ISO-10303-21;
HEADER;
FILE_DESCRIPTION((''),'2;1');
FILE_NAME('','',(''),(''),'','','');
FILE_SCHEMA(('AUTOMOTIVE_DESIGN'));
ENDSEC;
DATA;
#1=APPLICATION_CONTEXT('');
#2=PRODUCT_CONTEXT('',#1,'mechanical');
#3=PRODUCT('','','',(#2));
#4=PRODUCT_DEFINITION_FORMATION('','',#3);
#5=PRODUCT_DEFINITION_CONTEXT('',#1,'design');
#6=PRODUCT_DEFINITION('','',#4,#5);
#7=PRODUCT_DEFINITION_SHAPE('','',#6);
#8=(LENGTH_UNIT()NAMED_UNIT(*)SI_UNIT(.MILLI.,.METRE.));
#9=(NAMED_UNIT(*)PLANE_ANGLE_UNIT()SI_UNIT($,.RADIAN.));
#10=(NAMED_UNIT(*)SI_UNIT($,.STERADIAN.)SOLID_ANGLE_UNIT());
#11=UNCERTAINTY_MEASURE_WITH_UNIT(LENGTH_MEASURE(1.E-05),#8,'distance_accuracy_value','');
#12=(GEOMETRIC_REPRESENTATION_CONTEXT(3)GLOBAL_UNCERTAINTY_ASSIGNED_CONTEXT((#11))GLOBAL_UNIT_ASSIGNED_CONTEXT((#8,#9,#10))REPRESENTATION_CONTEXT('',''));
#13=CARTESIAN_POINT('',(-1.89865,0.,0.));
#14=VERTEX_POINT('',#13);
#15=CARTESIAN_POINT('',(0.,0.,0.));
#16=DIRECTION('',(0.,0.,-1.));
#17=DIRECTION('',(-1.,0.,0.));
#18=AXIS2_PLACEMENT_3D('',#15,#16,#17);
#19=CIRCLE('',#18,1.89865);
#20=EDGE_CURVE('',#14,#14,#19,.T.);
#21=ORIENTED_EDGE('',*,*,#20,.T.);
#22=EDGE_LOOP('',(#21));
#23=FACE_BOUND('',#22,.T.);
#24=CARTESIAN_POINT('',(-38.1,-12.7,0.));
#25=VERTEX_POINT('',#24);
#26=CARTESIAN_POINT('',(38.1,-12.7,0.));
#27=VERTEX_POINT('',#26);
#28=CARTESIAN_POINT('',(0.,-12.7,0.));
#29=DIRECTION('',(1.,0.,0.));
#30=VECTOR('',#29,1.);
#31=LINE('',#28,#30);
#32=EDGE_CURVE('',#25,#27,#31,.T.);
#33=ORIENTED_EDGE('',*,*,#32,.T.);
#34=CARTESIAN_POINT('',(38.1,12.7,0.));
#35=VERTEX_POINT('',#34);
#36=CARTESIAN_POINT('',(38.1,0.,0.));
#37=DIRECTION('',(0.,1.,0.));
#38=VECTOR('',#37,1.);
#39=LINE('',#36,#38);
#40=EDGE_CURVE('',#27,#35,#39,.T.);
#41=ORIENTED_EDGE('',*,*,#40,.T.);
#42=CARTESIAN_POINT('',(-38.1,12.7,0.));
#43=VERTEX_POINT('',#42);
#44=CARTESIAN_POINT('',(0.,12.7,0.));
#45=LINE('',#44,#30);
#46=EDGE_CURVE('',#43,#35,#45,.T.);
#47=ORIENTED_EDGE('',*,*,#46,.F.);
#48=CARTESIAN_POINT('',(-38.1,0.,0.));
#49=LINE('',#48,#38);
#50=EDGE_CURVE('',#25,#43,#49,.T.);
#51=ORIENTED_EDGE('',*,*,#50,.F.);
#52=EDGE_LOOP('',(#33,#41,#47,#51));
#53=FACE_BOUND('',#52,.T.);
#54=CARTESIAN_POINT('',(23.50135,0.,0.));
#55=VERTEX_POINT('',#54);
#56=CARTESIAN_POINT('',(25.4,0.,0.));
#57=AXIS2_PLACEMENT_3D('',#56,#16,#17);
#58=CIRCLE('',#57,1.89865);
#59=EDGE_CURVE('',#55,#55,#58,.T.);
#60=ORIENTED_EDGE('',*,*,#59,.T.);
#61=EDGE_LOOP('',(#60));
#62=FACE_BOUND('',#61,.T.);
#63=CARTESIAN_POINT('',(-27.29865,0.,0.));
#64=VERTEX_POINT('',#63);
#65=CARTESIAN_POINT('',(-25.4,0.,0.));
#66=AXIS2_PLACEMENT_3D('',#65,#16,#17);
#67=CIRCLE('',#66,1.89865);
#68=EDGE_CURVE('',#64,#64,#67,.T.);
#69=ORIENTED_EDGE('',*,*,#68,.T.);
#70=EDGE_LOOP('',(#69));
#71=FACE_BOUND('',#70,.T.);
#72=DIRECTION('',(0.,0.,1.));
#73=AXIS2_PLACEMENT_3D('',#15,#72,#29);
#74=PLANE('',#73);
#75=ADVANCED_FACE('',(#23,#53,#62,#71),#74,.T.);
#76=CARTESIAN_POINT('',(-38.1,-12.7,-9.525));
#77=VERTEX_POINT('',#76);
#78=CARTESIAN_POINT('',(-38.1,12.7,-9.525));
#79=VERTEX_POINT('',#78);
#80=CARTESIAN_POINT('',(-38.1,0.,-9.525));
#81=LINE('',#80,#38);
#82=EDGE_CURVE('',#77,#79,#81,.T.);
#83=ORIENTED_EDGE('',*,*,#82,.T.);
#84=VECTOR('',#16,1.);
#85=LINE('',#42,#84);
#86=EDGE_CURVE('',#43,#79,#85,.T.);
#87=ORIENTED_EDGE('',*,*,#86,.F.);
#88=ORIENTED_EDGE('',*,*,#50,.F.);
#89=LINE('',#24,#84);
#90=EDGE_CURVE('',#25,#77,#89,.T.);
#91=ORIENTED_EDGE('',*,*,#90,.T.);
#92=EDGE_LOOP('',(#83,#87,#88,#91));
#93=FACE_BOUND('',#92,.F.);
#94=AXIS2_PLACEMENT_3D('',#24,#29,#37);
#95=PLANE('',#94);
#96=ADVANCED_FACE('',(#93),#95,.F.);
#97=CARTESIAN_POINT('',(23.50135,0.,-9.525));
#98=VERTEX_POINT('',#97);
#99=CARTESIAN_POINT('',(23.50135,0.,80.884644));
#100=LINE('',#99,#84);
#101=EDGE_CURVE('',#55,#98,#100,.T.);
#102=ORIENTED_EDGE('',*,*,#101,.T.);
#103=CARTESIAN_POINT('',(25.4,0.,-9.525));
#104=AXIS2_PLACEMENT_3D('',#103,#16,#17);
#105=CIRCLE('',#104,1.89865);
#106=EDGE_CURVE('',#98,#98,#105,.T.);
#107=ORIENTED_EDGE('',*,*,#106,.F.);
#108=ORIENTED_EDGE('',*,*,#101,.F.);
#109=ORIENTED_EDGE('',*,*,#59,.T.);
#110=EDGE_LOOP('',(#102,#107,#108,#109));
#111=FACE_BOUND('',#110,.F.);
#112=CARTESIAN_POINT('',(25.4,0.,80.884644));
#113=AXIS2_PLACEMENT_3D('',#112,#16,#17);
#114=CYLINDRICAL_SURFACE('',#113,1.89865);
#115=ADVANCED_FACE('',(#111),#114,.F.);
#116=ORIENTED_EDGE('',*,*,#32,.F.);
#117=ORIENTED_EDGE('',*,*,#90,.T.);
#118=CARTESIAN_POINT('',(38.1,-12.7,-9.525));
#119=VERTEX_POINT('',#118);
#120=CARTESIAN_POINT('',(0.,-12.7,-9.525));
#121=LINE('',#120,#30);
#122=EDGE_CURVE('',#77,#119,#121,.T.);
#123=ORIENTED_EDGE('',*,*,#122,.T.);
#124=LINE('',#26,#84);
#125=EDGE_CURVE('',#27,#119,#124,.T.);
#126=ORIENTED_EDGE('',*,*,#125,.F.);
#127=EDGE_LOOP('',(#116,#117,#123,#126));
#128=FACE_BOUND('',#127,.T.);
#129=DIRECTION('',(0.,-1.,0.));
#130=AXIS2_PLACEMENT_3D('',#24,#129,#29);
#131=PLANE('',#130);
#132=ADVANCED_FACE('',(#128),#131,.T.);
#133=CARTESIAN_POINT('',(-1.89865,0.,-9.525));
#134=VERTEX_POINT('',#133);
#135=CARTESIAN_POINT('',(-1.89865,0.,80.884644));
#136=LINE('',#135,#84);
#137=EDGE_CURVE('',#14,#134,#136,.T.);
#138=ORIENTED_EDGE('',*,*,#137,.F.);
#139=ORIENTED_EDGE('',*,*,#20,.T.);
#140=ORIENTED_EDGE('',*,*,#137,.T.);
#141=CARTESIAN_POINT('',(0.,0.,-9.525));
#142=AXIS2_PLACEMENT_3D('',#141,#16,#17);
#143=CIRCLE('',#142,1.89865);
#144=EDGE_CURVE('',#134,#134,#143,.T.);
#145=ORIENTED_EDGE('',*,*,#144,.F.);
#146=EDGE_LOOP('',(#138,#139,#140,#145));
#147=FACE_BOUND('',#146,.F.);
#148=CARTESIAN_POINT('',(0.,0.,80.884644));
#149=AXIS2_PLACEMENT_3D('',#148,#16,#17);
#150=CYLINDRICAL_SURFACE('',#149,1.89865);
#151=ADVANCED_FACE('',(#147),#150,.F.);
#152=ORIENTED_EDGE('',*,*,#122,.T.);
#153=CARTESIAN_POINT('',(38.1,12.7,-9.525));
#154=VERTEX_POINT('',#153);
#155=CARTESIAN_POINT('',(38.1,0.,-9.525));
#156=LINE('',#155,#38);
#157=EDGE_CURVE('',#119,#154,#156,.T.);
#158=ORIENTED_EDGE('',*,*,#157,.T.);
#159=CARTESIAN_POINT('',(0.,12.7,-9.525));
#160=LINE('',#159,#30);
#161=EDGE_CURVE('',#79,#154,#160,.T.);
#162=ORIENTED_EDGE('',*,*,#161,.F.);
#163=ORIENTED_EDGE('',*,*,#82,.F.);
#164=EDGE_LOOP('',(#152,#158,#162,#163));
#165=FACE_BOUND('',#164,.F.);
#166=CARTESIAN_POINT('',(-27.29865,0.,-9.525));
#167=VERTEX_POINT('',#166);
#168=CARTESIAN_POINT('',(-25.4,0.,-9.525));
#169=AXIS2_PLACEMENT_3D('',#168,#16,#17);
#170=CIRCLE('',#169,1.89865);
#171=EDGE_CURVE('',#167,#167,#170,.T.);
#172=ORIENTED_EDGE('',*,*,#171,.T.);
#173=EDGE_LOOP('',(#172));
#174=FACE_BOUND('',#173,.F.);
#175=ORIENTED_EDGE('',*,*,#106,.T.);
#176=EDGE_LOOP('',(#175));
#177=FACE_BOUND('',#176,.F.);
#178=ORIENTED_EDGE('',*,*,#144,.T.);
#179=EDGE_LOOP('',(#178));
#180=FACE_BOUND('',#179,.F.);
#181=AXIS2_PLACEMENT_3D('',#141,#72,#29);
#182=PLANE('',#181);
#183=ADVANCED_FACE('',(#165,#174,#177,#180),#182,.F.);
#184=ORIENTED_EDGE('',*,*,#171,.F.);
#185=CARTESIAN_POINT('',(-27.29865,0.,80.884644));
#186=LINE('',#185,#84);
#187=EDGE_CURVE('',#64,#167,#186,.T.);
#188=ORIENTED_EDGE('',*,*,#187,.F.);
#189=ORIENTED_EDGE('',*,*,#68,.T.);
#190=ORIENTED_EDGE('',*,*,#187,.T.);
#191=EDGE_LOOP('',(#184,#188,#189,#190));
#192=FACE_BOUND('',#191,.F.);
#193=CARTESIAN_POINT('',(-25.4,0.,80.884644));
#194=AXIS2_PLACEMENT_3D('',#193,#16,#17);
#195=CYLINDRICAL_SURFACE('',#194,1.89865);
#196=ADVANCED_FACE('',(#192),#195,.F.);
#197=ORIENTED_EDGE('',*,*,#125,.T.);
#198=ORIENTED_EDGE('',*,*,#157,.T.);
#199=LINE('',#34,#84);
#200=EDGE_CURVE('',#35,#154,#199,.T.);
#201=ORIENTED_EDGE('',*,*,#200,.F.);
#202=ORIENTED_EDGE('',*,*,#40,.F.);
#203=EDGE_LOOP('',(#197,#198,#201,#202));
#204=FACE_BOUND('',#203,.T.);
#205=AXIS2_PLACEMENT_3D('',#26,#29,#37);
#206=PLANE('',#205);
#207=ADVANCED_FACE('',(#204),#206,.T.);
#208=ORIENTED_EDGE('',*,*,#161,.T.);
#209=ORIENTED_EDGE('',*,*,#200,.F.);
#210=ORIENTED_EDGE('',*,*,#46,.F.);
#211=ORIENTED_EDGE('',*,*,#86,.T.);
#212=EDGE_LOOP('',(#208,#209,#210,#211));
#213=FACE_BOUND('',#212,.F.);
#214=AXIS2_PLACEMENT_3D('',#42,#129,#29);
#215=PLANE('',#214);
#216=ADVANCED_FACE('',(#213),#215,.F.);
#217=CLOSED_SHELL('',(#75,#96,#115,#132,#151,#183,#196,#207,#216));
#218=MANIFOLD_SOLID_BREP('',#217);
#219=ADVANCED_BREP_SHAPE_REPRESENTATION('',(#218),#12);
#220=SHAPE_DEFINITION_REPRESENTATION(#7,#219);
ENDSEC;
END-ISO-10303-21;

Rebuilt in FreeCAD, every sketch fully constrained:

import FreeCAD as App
import Part
import Sketcher
from FreeCAD import Vector
Q = App.Units.Quantity

doc = App.newDocument("Part")
body = doc.addObject("PartDesign::Body", "Body")

# Sketch on XY plane
sketch1 = doc.addObject("Sketcher::SketchObject", "Sketch")
body.addObject(sketch1)
sketch1.AttachmentSupport = (doc.XY_Plane, [""])
sketch1.MapMode = "FlatFace"
sketch1.addGeometry(Part.LineSegment(Vector(-38, 13, 0), Vector(-38, -13, 0)), False)
sketch1.addGeometry(Part.LineSegment(Vector(-38, -13, 0), Vector(38, -13, 0)), False)
sketch1.addGeometry(Part.LineSegment(Vector(38, -13, 0), Vector(38, 13, 0)), False)
sketch1.addGeometry(Part.LineSegment(Vector(38, 13, 0), Vector(-38, 13, 0)), False)
sketch1.addConstraint(Sketcher.Constraint("Coincident", 0, 2, 1, 1))
sketch1.addConstraint(Sketcher.Constraint("Coincident", 1, 2, 2, 1))
sketch1.addConstraint(Sketcher.Constraint("Coincident", 2, 2, 3, 1))
sketch1.addConstraint(Sketcher.Constraint("Coincident", 3, 2, 0, 1))
sketch1.addConstraint(Sketcher.Constraint("Vertical", 0))
sketch1.addConstraint(Sketcher.Constraint("Horizontal", 1))
sketch1.addConstraint(Sketcher.Constraint("Vertical", 2))
sketch1.addConstraint(Sketcher.Constraint("Horizontal", 3))
sketch1.addConstraint(Sketcher.Constraint("Symmetric", 0, 2, 2, 2, -1, 1))
sketch1.addConstraint(Sketcher.Constraint("DistanceX", 1, 1, 1, 2, Q("3 in")))
sketch1.addConstraint(Sketcher.Constraint("DistanceY", 0, 2, 0, 1, Q("1 in")))
pad1 = doc.addObject("PartDesign::Pad", "Pad")
body.addObject(pad1)
pad1.Profile = sketch1
pad1.Length = Q("0.375 in")
pad1.Reversed = True

# Sketch on XY plane
sketch2 = doc.addObject("Sketcher::SketchObject", "Sketch001")
body.addObject(sketch2)
sketch2.AttachmentSupport = (doc.XY_Plane, [""])
sketch2.MapMode = "FlatFace"
sketch2.addGeometry(Part.Circle(Vector(-25.4, 0, 0), Vector(0, 0, 1), 1.9), False)
sketch2.addGeometry(Part.Circle(Vector(25.4, 0, 0), Vector(0, 0, 1), 1.9), False)
sketch2.addGeometry(Part.Circle(Vector(0, 0, 0), Vector(0, 0, 1), 1.9), False)
sketch2.addConstraint(Sketcher.Constraint("Coincident", 2, 3, -1, 1))
sketch2.addConstraint(Sketcher.Constraint("Equal", 0, 1))
sketch2.addConstraint(Sketcher.Constraint("Equal", 1, 2))
sketch2.addConstraint(Sketcher.Constraint("Symmetric", 0, 3, 1, 3, -1, 1))
sketch2.addConstraint(Sketcher.Constraint("PointOnObject", 0, 3, -1))
sketch2.addConstraint(Sketcher.Constraint("DistanceX", 0, 3, -1, 1, Q("1 in")))
sketch2.addConstraint(Sketcher.Constraint("Diameter", 0, Q("0.1495 in")))
doc.recompute()
hole = doc.addObject("PartDesign::Hole", "Hole")
body.addObject(hole)
hole.Profile = sketch2
hole.ThreadType = "None"
hole.Diameter = Q("0.1495 in")
hole.DepthType = "ThroughAll"

doc.recompute()
